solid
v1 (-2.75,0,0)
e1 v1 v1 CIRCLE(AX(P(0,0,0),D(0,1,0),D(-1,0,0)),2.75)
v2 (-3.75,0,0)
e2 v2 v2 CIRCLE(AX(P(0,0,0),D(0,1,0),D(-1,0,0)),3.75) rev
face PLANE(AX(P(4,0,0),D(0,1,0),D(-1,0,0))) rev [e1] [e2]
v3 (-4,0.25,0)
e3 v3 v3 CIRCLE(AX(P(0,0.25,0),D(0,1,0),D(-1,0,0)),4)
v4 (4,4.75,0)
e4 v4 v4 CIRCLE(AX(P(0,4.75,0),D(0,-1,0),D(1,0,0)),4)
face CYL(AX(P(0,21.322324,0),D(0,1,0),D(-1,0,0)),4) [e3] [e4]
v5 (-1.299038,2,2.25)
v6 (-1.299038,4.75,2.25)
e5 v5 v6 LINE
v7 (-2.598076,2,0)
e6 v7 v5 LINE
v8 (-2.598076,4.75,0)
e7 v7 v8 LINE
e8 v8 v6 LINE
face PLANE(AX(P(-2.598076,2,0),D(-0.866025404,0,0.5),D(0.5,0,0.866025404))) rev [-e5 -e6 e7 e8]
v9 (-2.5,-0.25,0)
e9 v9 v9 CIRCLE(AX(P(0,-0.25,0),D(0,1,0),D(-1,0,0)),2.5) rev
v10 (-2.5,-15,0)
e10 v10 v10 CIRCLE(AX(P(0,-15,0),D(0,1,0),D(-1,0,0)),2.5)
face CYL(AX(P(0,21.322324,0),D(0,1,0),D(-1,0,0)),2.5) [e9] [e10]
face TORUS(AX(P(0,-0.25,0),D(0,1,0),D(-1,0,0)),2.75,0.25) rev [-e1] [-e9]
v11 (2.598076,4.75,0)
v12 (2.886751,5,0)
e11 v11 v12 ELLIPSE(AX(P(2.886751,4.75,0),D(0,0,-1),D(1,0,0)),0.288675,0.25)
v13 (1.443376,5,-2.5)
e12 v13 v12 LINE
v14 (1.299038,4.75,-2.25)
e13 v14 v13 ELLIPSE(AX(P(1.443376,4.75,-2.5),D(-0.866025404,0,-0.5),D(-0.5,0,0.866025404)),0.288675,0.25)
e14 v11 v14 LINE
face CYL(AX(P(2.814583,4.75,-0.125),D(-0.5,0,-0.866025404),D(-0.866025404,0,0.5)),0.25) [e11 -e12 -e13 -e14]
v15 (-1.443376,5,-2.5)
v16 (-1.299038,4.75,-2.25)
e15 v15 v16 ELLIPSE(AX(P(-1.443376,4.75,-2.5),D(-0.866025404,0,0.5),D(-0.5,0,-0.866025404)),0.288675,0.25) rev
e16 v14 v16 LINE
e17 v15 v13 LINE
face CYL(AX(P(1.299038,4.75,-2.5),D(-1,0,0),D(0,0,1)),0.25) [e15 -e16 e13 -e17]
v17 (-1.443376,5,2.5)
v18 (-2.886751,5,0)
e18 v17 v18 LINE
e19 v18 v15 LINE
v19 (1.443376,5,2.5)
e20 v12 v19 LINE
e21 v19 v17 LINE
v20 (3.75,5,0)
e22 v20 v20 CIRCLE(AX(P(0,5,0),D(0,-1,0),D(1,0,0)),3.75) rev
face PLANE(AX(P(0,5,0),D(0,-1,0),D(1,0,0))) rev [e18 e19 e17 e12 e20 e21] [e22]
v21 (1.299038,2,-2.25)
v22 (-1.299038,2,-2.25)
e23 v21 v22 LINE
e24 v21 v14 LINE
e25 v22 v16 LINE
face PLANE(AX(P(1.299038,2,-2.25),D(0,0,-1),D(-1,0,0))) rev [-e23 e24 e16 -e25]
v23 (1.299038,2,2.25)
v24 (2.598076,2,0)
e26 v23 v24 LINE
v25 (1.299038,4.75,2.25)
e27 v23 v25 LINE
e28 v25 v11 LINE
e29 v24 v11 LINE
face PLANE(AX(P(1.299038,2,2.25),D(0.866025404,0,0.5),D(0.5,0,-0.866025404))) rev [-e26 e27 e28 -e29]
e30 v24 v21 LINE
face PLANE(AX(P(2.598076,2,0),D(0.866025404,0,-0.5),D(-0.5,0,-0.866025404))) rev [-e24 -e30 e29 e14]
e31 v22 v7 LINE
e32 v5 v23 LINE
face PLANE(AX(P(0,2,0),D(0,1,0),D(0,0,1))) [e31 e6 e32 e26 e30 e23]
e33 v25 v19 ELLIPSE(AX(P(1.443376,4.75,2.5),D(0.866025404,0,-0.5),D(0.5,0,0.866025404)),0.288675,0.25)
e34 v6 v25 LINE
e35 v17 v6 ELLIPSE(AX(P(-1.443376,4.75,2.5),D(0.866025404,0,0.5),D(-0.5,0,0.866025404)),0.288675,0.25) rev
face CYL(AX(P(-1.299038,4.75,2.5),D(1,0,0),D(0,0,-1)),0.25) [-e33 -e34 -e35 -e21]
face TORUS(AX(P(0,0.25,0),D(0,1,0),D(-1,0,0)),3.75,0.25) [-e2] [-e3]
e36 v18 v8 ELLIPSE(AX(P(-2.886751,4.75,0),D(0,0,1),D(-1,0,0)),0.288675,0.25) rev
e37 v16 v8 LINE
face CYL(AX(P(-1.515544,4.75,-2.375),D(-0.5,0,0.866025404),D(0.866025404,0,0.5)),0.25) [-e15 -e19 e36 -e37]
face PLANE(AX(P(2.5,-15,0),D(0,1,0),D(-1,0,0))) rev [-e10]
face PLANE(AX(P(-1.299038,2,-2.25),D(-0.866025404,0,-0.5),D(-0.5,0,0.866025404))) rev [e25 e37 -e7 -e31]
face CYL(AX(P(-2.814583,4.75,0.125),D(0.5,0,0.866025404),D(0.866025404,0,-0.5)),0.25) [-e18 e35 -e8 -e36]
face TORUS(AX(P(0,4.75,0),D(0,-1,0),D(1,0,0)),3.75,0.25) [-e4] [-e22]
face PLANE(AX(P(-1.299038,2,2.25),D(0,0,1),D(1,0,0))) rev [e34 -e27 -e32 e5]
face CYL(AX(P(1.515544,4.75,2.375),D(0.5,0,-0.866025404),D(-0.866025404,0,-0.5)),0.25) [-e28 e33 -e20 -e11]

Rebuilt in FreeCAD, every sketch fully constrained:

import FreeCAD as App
import Part
import Sketcher
Q = App.Units.Quantity


def edges_at(feature, points):
    """Names of the edges that pass closest to the given points."""
    edges = feature.Shape.Edges
    near = lambda p: min(range(len(edges)), key=lambda i: edges[i].distToShape(Part.Vertex(*p))[0])
    return sorted({f"Edge{near(p) + 1}" for p in points})


def add_polygon(sketch, points):
    """Adds a closed chain of lines whose ends are joined by coincident constraints."""
    first, n = sketch.GeometryCount, len(points)
    for a, b in zip(points, points[1:] + points[:1]):
        sketch.addGeometry(Part.LineSegment(App.Vector(*a, 0), App.Vector(*b, 0)), False)
    for i in range(n):
        sketch.addConstraint(Sketcher.Constraint("Coincident", first + i, 2, first + (i + 1) % n, 1))

doc = App.newDocument("Part")
body = doc.addObject("PartDesign::Body", "Body")

sketch1 = body.newObject("Sketcher::SketchObject", "Sketch")
sketch1.AttachmentSupport = (doc.getObject("XY_Plane"), [""])
sketch1.MapMode = "FlatFace"
add_polygon(sketch1, [(4, 5), (0, 5), (0, -15), (2.5, -15), (2.5, 0), (4, 0)])
sketch1.addConstraint([
    Sketcher.Constraint("Horizontal", 0),
    Sketcher.Constraint("Vertical", 1),
    Sketcher.Constraint("Horizontal", 2),
    Sketcher.Constraint("Vertical", 3),
    Sketcher.Constraint("Horizontal", 4),
    Sketcher.Constraint("Vertical", 5),
    Sketcher.Constraint("PointOnObject", 0, 2, -2),
    Sketcher.Constraint("PointOnObject", 3, 2, -1),
    Sketcher.Constraint("DistanceX", 0, 2, 0, 1, Q("4 mm")),
    Sketcher.Constraint("DistanceY", 1, 2, 1, 1, Q("20 mm")),
    Sketcher.Constraint("DistanceY", 3, 1, 3, 2, Q("15 mm")),
    Sketcher.Constraint("DistanceX", 2, 1, 2, 2, Q("2.5 mm")),
])
revolution = body.newObject("PartDesign::Revolution", "Revolution")
revolution.Profile = sketch1
revolution.ReferenceAxis = (sketch1, ["V_Axis"])
revolution.Angle = 360

sketch2 = body.newObject("Sketcher::SketchObject", "Sketch001")
sketch2.AttachmentSupport = (doc.getObject("XZ_Plane"), [""])
sketch2.MapMode = "FlatFace"
sketch2.AttachmentOffset = App.Placement(App.Vector(0, 0, -5), App.Rotation())
add_polygon(sketch2, [(2.6, 0), (1.3, -2.2), (-1.3, -2.2), (-2.6, 0), (-1.3, 2.2), (1.3, 2.2)])
sketch2.addConstraint([
    Sketcher.Constraint("Horizontal", 1),
    Sketcher.Constraint("Horizontal", 4),
    Sketcher.Constraint("Symmetric", 0, 2, 3, 2, -1, 1),
    Sketcher.Constraint("Symmetric", 2, 2, 5, 2, -1, 1),
    Sketcher.Constraint("PointOnObject", 2, 2, -1),
    Sketcher.Constraint("Parallel", 2, 5),
    Sketcher.Constraint("Vertical", 1, 2, 3, 2),
    Sketcher.Constraint("Angle", 0, Q("-120 deg")),
    Sketcher.Constraint("DistanceY", 1, 2, 3, 2, Q("4.5 mm")),
    Sketcher.Constraint("DistanceX", 1, 2, 1, 1, Q("2.598076 mm")),
])
pocket1 = body.newObject("PartDesign::Pocket", "Pocket")
pocket1.Profile = sketch2
pocket1.Length = 3
pocket1.Reversed = True
doc.recompute()

fillet = body.newObject("PartDesign::Fillet", "Fillet")
fillet.Base = (pocket1, edges_at(pocket1, [
    (1.949, 5, 1.125),
    (1.949, 5, -1.125),
    (0, 5, -2.25),
    (-1.949, 5, -1.125),
    (-1.949, 5, 1.125),
    (0, 5, 2.25),
    (2.5, 0, 0),
    (4, 0, 0),
    (4, 5, 0),
]))
fillet.Radius = 0.25

doc.recompute()
